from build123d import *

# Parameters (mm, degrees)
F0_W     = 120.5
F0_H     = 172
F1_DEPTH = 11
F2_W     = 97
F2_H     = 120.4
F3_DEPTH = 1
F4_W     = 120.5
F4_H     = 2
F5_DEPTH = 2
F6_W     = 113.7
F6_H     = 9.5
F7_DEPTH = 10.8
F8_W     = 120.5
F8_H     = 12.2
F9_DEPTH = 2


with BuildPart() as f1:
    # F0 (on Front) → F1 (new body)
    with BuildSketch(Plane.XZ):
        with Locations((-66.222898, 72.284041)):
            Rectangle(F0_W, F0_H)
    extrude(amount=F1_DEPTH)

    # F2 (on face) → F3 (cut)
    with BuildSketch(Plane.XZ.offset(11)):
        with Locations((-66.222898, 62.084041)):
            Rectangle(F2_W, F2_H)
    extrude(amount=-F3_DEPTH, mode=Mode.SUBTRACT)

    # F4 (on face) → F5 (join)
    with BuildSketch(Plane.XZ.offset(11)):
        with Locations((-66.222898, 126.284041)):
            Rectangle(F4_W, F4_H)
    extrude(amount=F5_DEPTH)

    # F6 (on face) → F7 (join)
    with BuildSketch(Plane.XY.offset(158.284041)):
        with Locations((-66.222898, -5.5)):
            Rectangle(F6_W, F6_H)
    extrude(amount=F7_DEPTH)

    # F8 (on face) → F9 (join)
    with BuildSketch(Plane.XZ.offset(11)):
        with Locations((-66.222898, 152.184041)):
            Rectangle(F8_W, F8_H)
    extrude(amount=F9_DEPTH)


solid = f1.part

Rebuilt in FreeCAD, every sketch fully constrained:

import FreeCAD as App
import Part
import Sketcher
from FreeCAD import Vector
Q = App.Units.Quantity

doc = App.newDocument("Part")
body = doc.addObject("PartDesign::Body", "Body")

# Sketch on XZ plane
sketch1 = body.newObject("Sketcher::SketchObject", "Sketch")
sketch1.AttachmentSupport = (doc.getObject("XZ_Plane"), [""])
sketch1.MapMode = "FlatFace"
sketch1.addGeometry([
    Part.LineSegment(Vector(-126, 158, 0), Vector(-126, -14, 0)),
    Part.LineSegment(Vector(-126, -14, 0), Vector(-6, -14, 0)),
    Part.LineSegment(Vector(-6, -14, 0), Vector(-6, 158, 0)),
    Part.LineSegment(Vector(-6, 158, 0), Vector(-126, 158, 0)),
], False)
sketch1.addConstraint([
    Sketcher.Constraint("Coincident", 0, 2, 1, 1),
    Sketcher.Constraint("Coincident", 1, 2, 2, 1),
    Sketcher.Constraint("Coincident", 2, 2, 3, 1),
    Sketcher.Constraint("Coincident", 3, 2, 0, 1),
    Sketcher.Constraint("Vertical", 0),
    Sketcher.Constraint("Horizontal", 1),
    Sketcher.Constraint("Vertical", 2),
    Sketcher.Constraint("Horizontal", 3),
    Sketcher.Constraint("DistanceY", 0, 2, 0, 1, Q("172 mm")),
    Sketcher.Constraint("DistanceX", 1, 1, 1, 2, Q("120.5 mm")),
    Sketcher.Constraint("DistanceX", 0, 2, -1, 1, Q("126.472898 mm")),
    Sketcher.Constraint("DistanceY", 0, 2, -1, 1, Q("13.715959 mm")),
])
pad1 = body.newObject("PartDesign::Pad", "Pad")
pad1.Profile = sketch1
pad1.Length = 11

# Sketch on XZ plane
sketch2 = body.newObject("Sketcher::SketchObject", "Sketch001")
sketch2.AttachmentSupport = (doc.getObject("XZ_Plane"), [""])
sketch2.MapMode = "FlatFace"
sketch2.AttachmentOffset = App.Placement(Vector(0, 0, 11), App.Rotation())
sketch2.addGeometry([
    Part.LineSegment(Vector(-115, 122, 0), Vector(-115, 2, 0)),
    Part.LineSegment(Vector(-115, 2, 0), Vector(-18, 2, 0)),
    Part.LineSegment(Vector(-18, 2, 0), Vector(-18, 122, 0)),
    Part.LineSegment(Vector(-18, 122, 0), Vector(-115, 122, 0)),
], False)
sketch2.addConstraint([
    Sketcher.Constraint("Coincident", 0, 2, 1, 1),
    Sketcher.Constraint("Coincident", 1, 2, 2, 1),
    Sketcher.Constraint("Coincident", 2, 2, 3, 1),
    Sketcher.Constraint("Coincident", 3, 2, 0, 1),
    Sketcher.Constraint("Vertical", 0),
    Sketcher.Constraint("Horizontal", 1),
    Sketcher.Constraint("Vertical", 2),
    Sketcher.Constraint("Horizontal", 3),
    Sketcher.Constraint("DistanceX", 1, 1, 1, 2, Q("97 mm")),
    Sketcher.Constraint("DistanceY", 0, 2, 0, 1, Q("120.4 mm")),
    Sketcher.Constraint("DistanceX", 0, 2, -1, 1, Q("114.722898 mm")),
    Sketcher.Constraint("DistanceY", -1, 1, 0, 2, Q("1.884041 mm")),
])
pocket1 = body.newObject("PartDesign::Pocket", "Pocket")
pocket1.Profile = sketch2
pocket1.Length = 1

# Sketch on XZ plane
sketch3 = body.newObject("Sketcher::SketchObject", "Sketch002")
sketch3.AttachmentSupport = (doc.getObject("XZ_Plane"), [""])
sketch3.MapMode = "FlatFace"
sketch3.AttachmentOffset = App.Placement(Vector(0, 0, 11), App.Rotation())
sketch3.addGeometry([
    Part.LineSegment(Vector(-126.5, 127.3, 0), Vector(-126.5, 125.3, 0)),
    Part.LineSegment(Vector(-126.5, 125.3, 0), Vector(-6, 125.3, 0)),
    Part.LineSegment(Vector(-6, 125.3, 0), Vector(-6, 127.3, 0)),
    Part.LineSegment(Vector(-6, 127.3, 0), Vector(-126.5, 127.3, 0)),
], False)
sketch3.addConstraint([
    Sketcher.Constraint("Coincident", 0, 2, 1, 1),
    Sketcher.Constraint("Coincident", 1, 2, 2, 1),
    Sketcher.Constraint("Coincident", 2, 2, 3, 1),
    Sketcher.Constraint("Coincident", 3, 2, 0, 1),
    Sketcher.Constraint("Vertical", 0),
    Sketcher.Constraint("Horizontal", 1),
    Sketcher.Constraint("Vertical", 2),
    Sketcher.Constraint("Horizontal", 3),
    Sketcher.Constraint("DistanceY", 0, 2, 0, 1, Q("2 mm")),
    Sketcher.Constraint("DistanceX", 1, 1, 1, 2, Q("120.5 mm")),
    Sketcher.Constraint("DistanceX", 0, 2, -1, 1, Q("126.472898 mm")),
    Sketcher.Constraint("DistanceY", -1, 1, 0, 2, Q("125.284041 mm")),
])
pad2 = body.newObject("PartDesign::Pad", "Pad001")
pad2.Profile = sketch3
pad2.Length = 2

# Sketch on XY plane
sketch4 = body.newObject("Sketcher::SketchObject", "Sketch003")
sketch4.AttachmentSupport = (doc.getObject("XY_Plane"), [""])
sketch4.MapMode = "FlatFace"
sketch4.AttachmentOffset = App.Placement(Vector(0, 0, 158.284041), App.Rotation())
sketch4.addGeometry([
    Part.LineSegment(Vector(-123, -1, 0), Vector(-123, -10, 0)),
    Part.LineSegment(Vector(-123, -10, 0), Vector(-9, -10, 0)),
    Part.LineSegment(Vector(-9, -10, 0), Vector(-9, -1, 0)),
    Part.LineSegment(Vector(-9, -1, 0), Vector(-123, -1, 0)),
], False)
sketch4.addConstraint([
    Sketcher.Constraint("Coincident", 0, 2, 1, 1),
    Sketcher.Constraint("Coincident", 1, 2, 2, 1),
    Sketcher.Constraint("Coincident", 2, 2, 3, 1),
    Sketcher.Constraint("Coincident", 3, 2, 0, 1),
    Sketcher.Constraint("Vertical", 0),
    Sketcher.Constraint("Horizontal", 1),
    Sketcher.Constraint("Vertical", 2),
    Sketcher.Constraint("Horizontal", 3),
    Sketcher.Constraint("DistanceX", 1, 1, 1, 2, Q("113.7 mm")),
    Sketcher.Constraint("DistanceY", 0, 2, 0, 1, Q("9.5 mm")),
    Sketcher.Constraint("DistanceY", 0, 2, -1, 1, Q("10.25 mm")),
    Sketcher.Constraint("DistanceX", 0, 2, -1, 1, Q("123.072898 mm")),
])
pad3 = body.newObject("PartDesign::Pad", "Pad002")
pad3.Profile = sketch4
pad3.Length = 10.8

# Sketch on XZ plane
sketch5 = body.newObject("Sketcher::SketchObject", "Sketch004")
sketch5.AttachmentSupport = (doc.getObject("XZ_Plane"), [""])
sketch5.MapMode = "FlatFace"
sketch5.AttachmentOffset = App.Placement(Vector(0, 0, 11), App.Rotation())
sketch5.addGeometry([
    Part.LineSegment(Vector(-126, 158, 0), Vector(-126, 146, 0)),
    Part.LineSegment(Vector(-126, 146, 0), Vector(-6, 146, 0)),
    Part.LineSegment(Vector(-6, 146, 0), Vector(-6, 158, 0)),
    Part.LineSegment(Vector(-6, 158, 0), Vector(-126, 158, 0)),
], False)
sketch5.addConstraint([
    Sketcher.Constraint("Coincident", 0, 2, 1, 1),
    Sketcher.Constraint("Coincident", 1, 2, 2, 1),
    Sketcher.Constraint("Coincident", 2, 2, 3, 1),
    Sketcher.Constraint("Coincident", 3, 2, 0, 1),
    Sketcher.Constraint("Vertical", 0),
    Sketcher.Constraint("Horizontal", 1),
    Sketcher.Constraint("Vertical", 2),
    Sketcher.Constraint("Horizontal", 3),
    Sketcher.Constraint("DistanceX", 1, 1, 1, 2, Q("120.5 mm")),
    Sketcher.Constraint("DistanceY", 0, 2, 0, 1, Q("12.2 mm")),
    Sketcher.Constraint("DistanceX", 0, 2, -1, 1, Q("126.472898 mm")),
    Sketcher.Constraint("DistanceY", -1, 1, 0, 2, Q("146.084041 mm")),
])
pad4 = body.newObject("PartDesign::Pad", "Pad003")
pad4.Profile = sketch5
pad4.Length = 2

doc.recompute()
